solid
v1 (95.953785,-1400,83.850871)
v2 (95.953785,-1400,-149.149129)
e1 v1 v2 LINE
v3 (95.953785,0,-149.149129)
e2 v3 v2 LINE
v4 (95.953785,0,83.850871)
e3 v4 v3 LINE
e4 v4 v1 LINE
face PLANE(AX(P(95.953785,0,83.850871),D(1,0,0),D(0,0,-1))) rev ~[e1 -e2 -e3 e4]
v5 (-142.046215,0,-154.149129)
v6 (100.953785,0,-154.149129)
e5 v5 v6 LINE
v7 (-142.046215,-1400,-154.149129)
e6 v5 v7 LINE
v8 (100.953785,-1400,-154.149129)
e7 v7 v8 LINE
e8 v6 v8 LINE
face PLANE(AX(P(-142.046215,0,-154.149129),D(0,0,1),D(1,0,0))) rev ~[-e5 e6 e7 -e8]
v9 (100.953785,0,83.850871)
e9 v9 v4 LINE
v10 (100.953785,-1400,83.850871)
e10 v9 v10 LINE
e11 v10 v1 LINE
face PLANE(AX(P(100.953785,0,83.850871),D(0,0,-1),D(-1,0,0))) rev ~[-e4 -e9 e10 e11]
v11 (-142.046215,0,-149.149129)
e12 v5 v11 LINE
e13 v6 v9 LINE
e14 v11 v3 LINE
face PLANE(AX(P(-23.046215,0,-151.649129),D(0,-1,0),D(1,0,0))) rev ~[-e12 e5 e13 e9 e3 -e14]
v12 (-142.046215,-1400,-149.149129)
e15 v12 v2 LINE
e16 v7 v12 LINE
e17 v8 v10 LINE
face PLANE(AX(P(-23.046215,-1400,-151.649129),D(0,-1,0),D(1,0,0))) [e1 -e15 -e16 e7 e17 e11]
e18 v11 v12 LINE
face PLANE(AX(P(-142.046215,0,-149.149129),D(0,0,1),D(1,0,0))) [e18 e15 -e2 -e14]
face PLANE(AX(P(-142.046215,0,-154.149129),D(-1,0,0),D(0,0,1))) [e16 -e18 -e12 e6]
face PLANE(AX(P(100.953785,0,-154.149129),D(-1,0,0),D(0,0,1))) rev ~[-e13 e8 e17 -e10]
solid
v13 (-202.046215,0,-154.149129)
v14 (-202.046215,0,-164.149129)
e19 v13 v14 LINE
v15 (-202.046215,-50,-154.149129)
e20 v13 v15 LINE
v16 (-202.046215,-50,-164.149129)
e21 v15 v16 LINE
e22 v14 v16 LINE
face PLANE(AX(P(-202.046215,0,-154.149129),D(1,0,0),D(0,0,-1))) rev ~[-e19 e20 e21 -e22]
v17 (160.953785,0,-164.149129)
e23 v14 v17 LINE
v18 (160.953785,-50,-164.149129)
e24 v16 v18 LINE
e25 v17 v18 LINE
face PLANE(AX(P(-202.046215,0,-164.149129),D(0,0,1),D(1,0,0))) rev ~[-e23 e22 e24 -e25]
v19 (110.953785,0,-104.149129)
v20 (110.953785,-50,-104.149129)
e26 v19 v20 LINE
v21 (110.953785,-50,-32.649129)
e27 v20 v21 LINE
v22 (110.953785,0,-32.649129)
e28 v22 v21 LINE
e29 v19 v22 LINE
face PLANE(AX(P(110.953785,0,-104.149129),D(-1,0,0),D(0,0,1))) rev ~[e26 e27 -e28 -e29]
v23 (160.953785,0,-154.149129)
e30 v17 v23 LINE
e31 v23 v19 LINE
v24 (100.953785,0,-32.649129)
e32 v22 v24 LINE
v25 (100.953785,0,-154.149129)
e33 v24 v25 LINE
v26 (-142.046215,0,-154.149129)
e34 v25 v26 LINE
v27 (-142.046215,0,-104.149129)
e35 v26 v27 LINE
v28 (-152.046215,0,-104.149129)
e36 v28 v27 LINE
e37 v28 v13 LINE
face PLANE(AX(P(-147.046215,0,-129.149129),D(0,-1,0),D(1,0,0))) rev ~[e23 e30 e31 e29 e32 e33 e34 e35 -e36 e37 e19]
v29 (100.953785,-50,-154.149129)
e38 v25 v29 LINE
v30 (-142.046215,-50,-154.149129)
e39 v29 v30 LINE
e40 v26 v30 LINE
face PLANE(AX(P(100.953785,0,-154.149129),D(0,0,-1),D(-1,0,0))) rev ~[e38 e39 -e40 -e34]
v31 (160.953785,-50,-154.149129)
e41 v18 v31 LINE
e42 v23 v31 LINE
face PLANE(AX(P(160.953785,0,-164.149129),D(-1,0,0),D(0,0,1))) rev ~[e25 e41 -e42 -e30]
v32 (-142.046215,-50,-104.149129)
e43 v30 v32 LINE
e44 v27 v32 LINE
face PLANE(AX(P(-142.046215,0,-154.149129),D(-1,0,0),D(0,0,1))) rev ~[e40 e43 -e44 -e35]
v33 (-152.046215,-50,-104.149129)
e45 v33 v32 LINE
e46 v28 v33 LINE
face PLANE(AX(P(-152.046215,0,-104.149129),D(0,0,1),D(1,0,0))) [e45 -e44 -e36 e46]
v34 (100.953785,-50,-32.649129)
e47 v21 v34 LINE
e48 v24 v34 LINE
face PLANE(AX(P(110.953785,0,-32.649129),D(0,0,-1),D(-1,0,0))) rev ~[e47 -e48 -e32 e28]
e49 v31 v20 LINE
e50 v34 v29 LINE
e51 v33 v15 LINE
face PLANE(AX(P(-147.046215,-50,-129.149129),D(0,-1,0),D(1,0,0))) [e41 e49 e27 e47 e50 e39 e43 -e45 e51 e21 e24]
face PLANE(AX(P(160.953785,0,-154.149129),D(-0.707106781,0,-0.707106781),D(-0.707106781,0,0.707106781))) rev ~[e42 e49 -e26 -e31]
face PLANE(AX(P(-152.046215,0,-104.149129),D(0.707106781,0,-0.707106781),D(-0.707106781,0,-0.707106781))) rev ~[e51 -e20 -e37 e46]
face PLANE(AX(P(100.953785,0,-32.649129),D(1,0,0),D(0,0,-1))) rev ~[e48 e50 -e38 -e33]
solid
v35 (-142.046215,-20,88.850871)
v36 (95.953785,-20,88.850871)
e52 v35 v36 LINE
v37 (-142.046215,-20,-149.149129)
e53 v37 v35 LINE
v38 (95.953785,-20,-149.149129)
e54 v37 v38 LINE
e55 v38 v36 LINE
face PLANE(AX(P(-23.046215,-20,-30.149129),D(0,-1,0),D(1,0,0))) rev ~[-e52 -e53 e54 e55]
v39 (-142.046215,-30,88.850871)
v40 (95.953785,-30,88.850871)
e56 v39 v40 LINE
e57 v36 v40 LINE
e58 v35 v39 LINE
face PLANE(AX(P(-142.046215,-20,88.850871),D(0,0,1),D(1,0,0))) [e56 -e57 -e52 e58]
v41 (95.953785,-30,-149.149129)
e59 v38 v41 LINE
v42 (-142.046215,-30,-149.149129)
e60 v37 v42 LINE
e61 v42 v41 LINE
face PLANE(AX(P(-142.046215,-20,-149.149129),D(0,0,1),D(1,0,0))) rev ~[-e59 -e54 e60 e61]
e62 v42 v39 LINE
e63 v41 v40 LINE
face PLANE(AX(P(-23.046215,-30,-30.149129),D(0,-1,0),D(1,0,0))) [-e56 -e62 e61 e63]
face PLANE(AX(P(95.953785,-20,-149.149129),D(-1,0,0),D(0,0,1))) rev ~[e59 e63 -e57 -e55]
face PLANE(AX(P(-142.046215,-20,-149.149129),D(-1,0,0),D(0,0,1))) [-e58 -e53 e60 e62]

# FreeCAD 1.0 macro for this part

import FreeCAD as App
import Part
import Sketcher
Q = App.Units.Quantity

doc = App.newDocument("Part")
body = doc.addObject("PartDesign::Body", "Body")

# Sketch on XZ plane
sketch1 = body.newObject("Sketcher::SketchObject", "Sketch")
sketch1.AttachmentSupport = (doc.getObject("XZ_Plane"), [""])
sketch1.MapMode = "FlatFace"
sketch1.addGeometry([
    Part.LineSegment(App.Vector(-202, -154, 0), App.Vector(-202, -164, 0)),  # 0
    Part.LineSegment(App.Vector(-202, -164, 0), App.Vector(161, -164, 0)),  # 1
    Part.LineSegment(App.Vector(161, -164, 0), App.Vector(161, -154, 0)),  # 2
    Part.LineSegment(App.Vector(161, -154, 0), App.Vector(111, -104, 0)),  # 3
    Part.LineSegment(App.Vector(111, -104, 0), App.Vector(111, -33, 0)),  # 4
    Part.LineSegment(App.Vector(111, -33, 0), App.Vector(101, -33, 0)),  # 5
    Part.LineSegment(App.Vector(101, -33, 0), App.Vector(101, -154, 0)),  # 6
    Part.LineSegment(App.Vector(101, -154, 0), App.Vector(-142, -154, 0)),  # 7
    Part.LineSegment(App.Vector(-142, -154, 0), App.Vector(-142, -104, 0)),  # 8
    Part.LineSegment(App.Vector(-142, -104, 0), App.Vector(-152, -104, 0)),  # 9
    Part.LineSegment(App.Vector(-152, -104, 0), App.Vector(-202, -154, 0)),  # 10
], False)
sketch1.addConstraint([
    Sketcher.Constraint("Coincident", 0, 2, 1, 1),
    Sketcher.Constraint("Coincident", 1, 2, 2, 1),
    Sketcher.Constraint("Coincident", 2, 2, 3, 1),
    Sketcher.Constraint("Coincident", 3, 2, 4, 1),
    Sketcher.Constraint("Coincident", 4, 2, 5, 1),
    Sketcher.Constraint("Coincident", 5, 2, 6, 1),
    Sketcher.Constraint("Coincident", 6, 2, 7, 1),
    Sketcher.Constraint("Coincident", 7, 2, 8, 1),
    Sketcher.Constraint("Coincident", 8, 2, 9, 1),
    Sketcher.Constraint("Coincident", 9, 2, 10, 1),
    Sketcher.Constraint("Coincident", 10, 2, 0, 1),
    Sketcher.Constraint("Vertical", 0),
    Sketcher.Constraint("Horizontal", 1),
    Sketcher.Constraint("Vertical", 2),
    Sketcher.Constraint("Vertical", 4),
    Sketcher.Constraint("Horizontal", 5),
    Sketcher.Constraint("Vertical", 6),
    Sketcher.Constraint("Horizontal", 7),
    Sketcher.Constraint("Vertical", 8),
    Sketcher.Constraint("Horizontal", 9),
    Sketcher.Constraint("Perpendicular", 3, 10),
    Sketcher.Constraint("Horizontal", 2, 2, 6, 2),
    Sketcher.Constraint("Horizontal", 3, 2, 8, 2),
    Sketcher.Constraint("Horizontal", 7, 2, 10, 2),
    Sketcher.Constraint("Equal", 5, 9),
    Sketcher.Constraint("Equal", 9, 0),
    Sketcher.Constraint("Equal", 3, 10),
    Sketcher.Constraint("DistanceX", 1, 1, 1, 2, Q("363 mm")),
    Sketcher.Constraint("DistanceX", 5, 2, 5, 1, Q("10 mm")),
    Sketcher.Constraint("DistanceX", 7, 2, 7, 1, Q("243 mm")),
    Sketcher.Constraint("DistanceY", 4, 1, 4, 2, Q("71.5 mm")),
    Sketcher.Constraint("DistanceY", 0, 2, -1, 1, Q("164.149129 mm")),
    Sketcher.Constraint("DistanceX", 0, 2, -1, 1, Q("202.046215 mm")),
])
pad1 = body.newObject("PartDesign::Pad", "Pad")
pad1.Profile = sketch1
pad1.Length = 50
body2 = doc.addObject("PartDesign::Body", "Body001")

# Sketch on XZ plane
sketch2 = body2.newObject("Sketcher::SketchObject", "Sketch001")
sketch2.AttachmentSupport = (doc.getObject("XZ_Plane001"), [""])
sketch2.MapMode = "FlatFace"
sketch2.AttachmentOffset = App.Placement(App.Vector(0, 0, 20), App.Rotation())
sketch2.addGeometry([
    Part.LineSegment(App.Vector(-142, 89, 0), App.Vector(-142, -149, 0)),
    Part.LineSegment(App.Vector(-142, -149, 0), App.Vector(96, -149, 0)),
    Part.LineSegment(App.Vector(96, -149, 0), App.Vector(96, 89, 0)),
    Part.LineSegment(App.Vector(96, 89, 0), App.Vector(-142, 89, 0)),
], False)
sketch2.addConstraint([
    Sketcher.Constraint("Coincident", 0, 2, 1, 1),
    Sketcher.Constraint("Coincident", 1, 2, 2, 1),
    Sketcher.Constraint("Coincident", 2, 2, 3, 1),
    Sketcher.Constraint("Coincident", 3, 2, 0, 1),
    Sketcher.Constraint("Vertical", 0),
    Sketcher.Constraint("Horizontal", 1),
    Sketcher.Constraint("Vertical", 2),
    Sketcher.Constraint("Horizontal", 3),
    Sketcher.Constraint("Equal", 3, 0),
    Sketcher.Constraint("DistanceX", 1, 1, 1, 2, Q("238 mm")),
    Sketcher.Constraint("DistanceY", 0, 2, -1, 1, Q("149.149129 mm")),
    Sketcher.Constraint("DistanceX", 0, 2, -1, 1, Q("142.046215 mm")),
])
pad2 = body2.newObject("PartDesign::Pad", "Pad001")
pad2.Profile = sketch2
pad2.Length = 10
body3 = doc.addObject("PartDesign::Body", "Body002")

# Sketch on XZ plane
sketch3 = body3.newObject("Sketcher::SketchObject", "Sketch002")
sketch3.AttachmentSupport = (doc.getObject("XZ_Plane002"), [""])
sketch3.MapMode = "FlatFace"
sketch3.addGeometry([
    Part.LineSegment(App.Vector(-142, -149, 0), App.Vector(-142, -154, 0)),  # 0
    Part.LineSegment(App.Vector(-142, -154, 0), App.Vector(101, -154, 0)),  # 1
    Part.LineSegment(App.Vector(101, -154, 0), App.Vector(101, 84, 0)),  # 2
    Part.LineSegment(App.Vector(101, 84, 0), App.Vector(96, 84, 0)),  # 3
    Part.LineSegment(App.Vector(96, 84, 0), App.Vector(96, -149, 0)),  # 4
    Part.LineSegment(App.Vector(96, -149, 0), App.Vector(-142, -149, 0)),  # 5
], False)
sketch3.addConstraint([
    Sketcher.Constraint("Coincident", 0, 2, 1, 1),
    Sketcher.Constraint("Coincident", 1, 2, 2, 1),
    Sketcher.Constraint("Coincident", 2, 2, 3, 1),
    Sketcher.Constraint("Coincident", 3, 2, 4, 1),
    Sketcher.Constraint("Coincident", 4, 2, 5, 1),
    Sketcher.Constraint("Coincident", 5, 2, 0, 1),
    Sketcher.Constraint("Vertical", 0),
    Sketcher.Constraint("Horizontal", 1),
    Sketcher.Constraint("Vertical", 2),
    Sketcher.Constraint("Horizontal", 3),
    Sketcher.Constraint("Vertical", 4),
    Sketcher.Constraint("Horizontal", 5),
    Sketcher.Constraint("Equal", 3, 0),
    Sketcher.Constraint("Equal", 5, 2),
    Sketcher.Constraint("DistanceX", 1, 1, 1, 2, Q("243 mm")),
    Sketcher.Constraint("DistanceX", 3, 2, 3, 1, Q("5 mm")),
    Sketcher.Constraint("DistanceY", 0, 2, -1, 1, Q("154.149129 mm")),
    Sketcher.Constraint("DistanceX", 0, 2, -1, 1, Q("142.046215 mm")),
])
pad3 = body3.newObject("PartDesign::Pad", "Pad002")
pad3.Profile = sketch3
pad3.Length = 1400

doc.recompute()
